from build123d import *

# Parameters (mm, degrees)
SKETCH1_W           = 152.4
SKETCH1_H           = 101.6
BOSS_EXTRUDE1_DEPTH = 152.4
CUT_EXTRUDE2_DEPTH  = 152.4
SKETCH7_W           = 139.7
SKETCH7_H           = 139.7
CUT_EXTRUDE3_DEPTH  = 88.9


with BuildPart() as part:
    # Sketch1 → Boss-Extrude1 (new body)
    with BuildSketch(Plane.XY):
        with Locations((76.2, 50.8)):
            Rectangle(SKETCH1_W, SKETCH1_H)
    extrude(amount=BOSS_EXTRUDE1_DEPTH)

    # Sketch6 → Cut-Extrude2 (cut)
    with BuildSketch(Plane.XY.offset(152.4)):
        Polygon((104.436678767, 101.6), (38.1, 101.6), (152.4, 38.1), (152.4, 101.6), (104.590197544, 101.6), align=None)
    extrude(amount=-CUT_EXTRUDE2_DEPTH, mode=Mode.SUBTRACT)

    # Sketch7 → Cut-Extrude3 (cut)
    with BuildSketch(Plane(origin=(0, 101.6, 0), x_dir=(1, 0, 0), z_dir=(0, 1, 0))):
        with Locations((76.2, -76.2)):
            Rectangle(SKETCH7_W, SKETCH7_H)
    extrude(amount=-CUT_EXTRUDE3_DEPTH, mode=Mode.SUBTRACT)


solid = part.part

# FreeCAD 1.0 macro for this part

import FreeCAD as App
import Part
import Sketcher
Q = App.Units.Quantity


def add_polygon(sketch, points):
    """Adds a closed chain of lines whose ends are joined by coincident constraints."""
    first, n = sketch.GeometryCount, len(points)
    for a, b in zip(points, points[1:] + points[:1]):
        sketch.addGeometry(Part.LineSegment(App.Vector(*a, 0), App.Vector(*b, 0)), False)
    for i in range(n):
        sketch.addConstraint(Sketcher.Constraint("Coincident", first + i, 2, first + (i + 1) % n, 1))

doc = App.newDocument("Part")
params = doc.addObject("Spreadsheet::Sheet", "Params")
for row, (alias, value) in enumerate([
    ("sketch1_width", "6 in"),
    ("sketch1_height", "4 in"),
    ("pad1_length", "6 in"),
    ("sketch2_width", "4.5 in"),
    ("sketch2_height", "2.5 in"),
    ("pocket1_length", "6 in"),
    ("sketch3_width", "5.5 in"),
    ("pocket2_length", "3.5 in"),
], start=1):
    params.set(f"A{row}", alias)
    params.set(f"B{row}", "=" + value)
    params.setAlias(f"B{row}", alias)

body = doc.addObject("PartDesign::Body", "Body")

# Sketch on XY plane
sketch1 = doc.addObject("Sketcher::SketchObject", "Sketch")
body.addObject(sketch1)
sketch1.AttachmentSupport = (doc.XY_Plane, [""])
sketch1.MapMode = "FlatFace"
add_polygon(sketch1, [(0, 102), (0, 0), (152, 0), (152, 102)])  # lines 0-3
sketch1.addConstraint([
    Sketcher.Constraint("Vertical", 0),
    Sketcher.Constraint("Horizontal", 1),
    Sketcher.Constraint("Vertical", 2),
    Sketcher.Constraint("Horizontal", 3),
    Sketcher.Constraint("Coincident", 0, 2, -1, 1),
    Sketcher.Constraint("DistanceX", 1, 1, 1, 2, Q("6 in")),
    Sketcher.Constraint("DistanceY", 0, 2, 0, 1, Q("4 in")),
])
sketch1.setExpression("Constraints[9]", "Params.sketch1_width")
sketch1.setExpression("Constraints[10]", "Params.sketch1_height")
pad1 = doc.addObject("PartDesign::Pad", "Pad")
body.addObject(pad1)
pad1.Profile = sketch1
pad1.setExpression("Length", "Params.pad1_length")

# Sketch on XY plane
sketch2 = doc.addObject("Sketcher::SketchObject", "Sketch001")
body.addObject(sketch2)
sketch2.AttachmentSupport = (doc.XY_Plane, [""])
sketch2.MapMode = "FlatFace"
sketch2.AttachmentOffset = App.Placement(App.Vector(0, 0, 6 * 25.4), App.Rotation())
add_polygon(sketch2, [(38, 102), (152, 38), (152, 102)])  # lines 0-2
sketch2.addConstraint([
    Sketcher.Constraint("Vertical", 1),
    Sketcher.Constraint("Horizontal", 2),
    Sketcher.Constraint("DistanceX", 2, 2, 2, 1, Q("4.5 in")),
    Sketcher.Constraint("DistanceY", 1, 1, 1, 2, Q("2.5 in")),
    Sketcher.Constraint("DistanceX", -1, 1, 0, 2, Q("6 in")),
    Sketcher.Constraint("DistanceY", -1, 1, 1, 2, Q("4 in")),
])
sketch2.setExpression("Constraints[5]", "Params.sketch2_width")
sketch2.setExpression("Constraints[6]", "Params.sketch2_height")
pocket1 = doc.addObject("PartDesign::Pocket", "Pocket")
body.addObject(pocket1)
pocket1.Profile = sketch2
pocket1.setExpression("Length", "Params.pocket1_length")

# Sketch on XZ plane
sketch3 = doc.addObject("Sketcher::SketchObject", "Sketch002")
body.addObject(sketch3)
sketch3.AttachmentSupport = (doc.XZ_Plane, [""])
sketch3.MapMode = "FlatFace"
sketch3.AttachmentOffset = App.Placement(App.Vector(0, 0, -4 * 25.4), App.Rotation())
add_polygon(sketch3, [(6, 6), (6, 146), (146, 146), (146, 6)])  # lines 0-3
sketch3.addConstraint([
    Sketcher.Constraint("Vertical", 0),
    Sketcher.Constraint("Horizontal", 1),
    Sketcher.Constraint("Vertical", 2),
    Sketcher.Constraint("Horizontal", 3),
    Sketcher.Constraint("Equal", 3, 0),
    Sketcher.Constraint("DistanceX", 1, 1, 1, 2, Q("5.5 in")),
    Sketcher.Constraint("DistanceX", -1, 1, 0, 2, Q("0.25 in")),
    Sketcher.Constraint("DistanceY", -1, 1, 0, 2, Q("5.75 in")),
])
sketch3.setExpression("Constraints[9]", "Params.sketch3_width")
pocket2 = doc.addObject("PartDesign::Pocket", "Pocket001")
body.addObject(pocket2)
pocket2.Profile = sketch3
pocket2.setExpression("Length", "Params.pocket2_length")
pocket2.Reversed = True

doc.recompute()
